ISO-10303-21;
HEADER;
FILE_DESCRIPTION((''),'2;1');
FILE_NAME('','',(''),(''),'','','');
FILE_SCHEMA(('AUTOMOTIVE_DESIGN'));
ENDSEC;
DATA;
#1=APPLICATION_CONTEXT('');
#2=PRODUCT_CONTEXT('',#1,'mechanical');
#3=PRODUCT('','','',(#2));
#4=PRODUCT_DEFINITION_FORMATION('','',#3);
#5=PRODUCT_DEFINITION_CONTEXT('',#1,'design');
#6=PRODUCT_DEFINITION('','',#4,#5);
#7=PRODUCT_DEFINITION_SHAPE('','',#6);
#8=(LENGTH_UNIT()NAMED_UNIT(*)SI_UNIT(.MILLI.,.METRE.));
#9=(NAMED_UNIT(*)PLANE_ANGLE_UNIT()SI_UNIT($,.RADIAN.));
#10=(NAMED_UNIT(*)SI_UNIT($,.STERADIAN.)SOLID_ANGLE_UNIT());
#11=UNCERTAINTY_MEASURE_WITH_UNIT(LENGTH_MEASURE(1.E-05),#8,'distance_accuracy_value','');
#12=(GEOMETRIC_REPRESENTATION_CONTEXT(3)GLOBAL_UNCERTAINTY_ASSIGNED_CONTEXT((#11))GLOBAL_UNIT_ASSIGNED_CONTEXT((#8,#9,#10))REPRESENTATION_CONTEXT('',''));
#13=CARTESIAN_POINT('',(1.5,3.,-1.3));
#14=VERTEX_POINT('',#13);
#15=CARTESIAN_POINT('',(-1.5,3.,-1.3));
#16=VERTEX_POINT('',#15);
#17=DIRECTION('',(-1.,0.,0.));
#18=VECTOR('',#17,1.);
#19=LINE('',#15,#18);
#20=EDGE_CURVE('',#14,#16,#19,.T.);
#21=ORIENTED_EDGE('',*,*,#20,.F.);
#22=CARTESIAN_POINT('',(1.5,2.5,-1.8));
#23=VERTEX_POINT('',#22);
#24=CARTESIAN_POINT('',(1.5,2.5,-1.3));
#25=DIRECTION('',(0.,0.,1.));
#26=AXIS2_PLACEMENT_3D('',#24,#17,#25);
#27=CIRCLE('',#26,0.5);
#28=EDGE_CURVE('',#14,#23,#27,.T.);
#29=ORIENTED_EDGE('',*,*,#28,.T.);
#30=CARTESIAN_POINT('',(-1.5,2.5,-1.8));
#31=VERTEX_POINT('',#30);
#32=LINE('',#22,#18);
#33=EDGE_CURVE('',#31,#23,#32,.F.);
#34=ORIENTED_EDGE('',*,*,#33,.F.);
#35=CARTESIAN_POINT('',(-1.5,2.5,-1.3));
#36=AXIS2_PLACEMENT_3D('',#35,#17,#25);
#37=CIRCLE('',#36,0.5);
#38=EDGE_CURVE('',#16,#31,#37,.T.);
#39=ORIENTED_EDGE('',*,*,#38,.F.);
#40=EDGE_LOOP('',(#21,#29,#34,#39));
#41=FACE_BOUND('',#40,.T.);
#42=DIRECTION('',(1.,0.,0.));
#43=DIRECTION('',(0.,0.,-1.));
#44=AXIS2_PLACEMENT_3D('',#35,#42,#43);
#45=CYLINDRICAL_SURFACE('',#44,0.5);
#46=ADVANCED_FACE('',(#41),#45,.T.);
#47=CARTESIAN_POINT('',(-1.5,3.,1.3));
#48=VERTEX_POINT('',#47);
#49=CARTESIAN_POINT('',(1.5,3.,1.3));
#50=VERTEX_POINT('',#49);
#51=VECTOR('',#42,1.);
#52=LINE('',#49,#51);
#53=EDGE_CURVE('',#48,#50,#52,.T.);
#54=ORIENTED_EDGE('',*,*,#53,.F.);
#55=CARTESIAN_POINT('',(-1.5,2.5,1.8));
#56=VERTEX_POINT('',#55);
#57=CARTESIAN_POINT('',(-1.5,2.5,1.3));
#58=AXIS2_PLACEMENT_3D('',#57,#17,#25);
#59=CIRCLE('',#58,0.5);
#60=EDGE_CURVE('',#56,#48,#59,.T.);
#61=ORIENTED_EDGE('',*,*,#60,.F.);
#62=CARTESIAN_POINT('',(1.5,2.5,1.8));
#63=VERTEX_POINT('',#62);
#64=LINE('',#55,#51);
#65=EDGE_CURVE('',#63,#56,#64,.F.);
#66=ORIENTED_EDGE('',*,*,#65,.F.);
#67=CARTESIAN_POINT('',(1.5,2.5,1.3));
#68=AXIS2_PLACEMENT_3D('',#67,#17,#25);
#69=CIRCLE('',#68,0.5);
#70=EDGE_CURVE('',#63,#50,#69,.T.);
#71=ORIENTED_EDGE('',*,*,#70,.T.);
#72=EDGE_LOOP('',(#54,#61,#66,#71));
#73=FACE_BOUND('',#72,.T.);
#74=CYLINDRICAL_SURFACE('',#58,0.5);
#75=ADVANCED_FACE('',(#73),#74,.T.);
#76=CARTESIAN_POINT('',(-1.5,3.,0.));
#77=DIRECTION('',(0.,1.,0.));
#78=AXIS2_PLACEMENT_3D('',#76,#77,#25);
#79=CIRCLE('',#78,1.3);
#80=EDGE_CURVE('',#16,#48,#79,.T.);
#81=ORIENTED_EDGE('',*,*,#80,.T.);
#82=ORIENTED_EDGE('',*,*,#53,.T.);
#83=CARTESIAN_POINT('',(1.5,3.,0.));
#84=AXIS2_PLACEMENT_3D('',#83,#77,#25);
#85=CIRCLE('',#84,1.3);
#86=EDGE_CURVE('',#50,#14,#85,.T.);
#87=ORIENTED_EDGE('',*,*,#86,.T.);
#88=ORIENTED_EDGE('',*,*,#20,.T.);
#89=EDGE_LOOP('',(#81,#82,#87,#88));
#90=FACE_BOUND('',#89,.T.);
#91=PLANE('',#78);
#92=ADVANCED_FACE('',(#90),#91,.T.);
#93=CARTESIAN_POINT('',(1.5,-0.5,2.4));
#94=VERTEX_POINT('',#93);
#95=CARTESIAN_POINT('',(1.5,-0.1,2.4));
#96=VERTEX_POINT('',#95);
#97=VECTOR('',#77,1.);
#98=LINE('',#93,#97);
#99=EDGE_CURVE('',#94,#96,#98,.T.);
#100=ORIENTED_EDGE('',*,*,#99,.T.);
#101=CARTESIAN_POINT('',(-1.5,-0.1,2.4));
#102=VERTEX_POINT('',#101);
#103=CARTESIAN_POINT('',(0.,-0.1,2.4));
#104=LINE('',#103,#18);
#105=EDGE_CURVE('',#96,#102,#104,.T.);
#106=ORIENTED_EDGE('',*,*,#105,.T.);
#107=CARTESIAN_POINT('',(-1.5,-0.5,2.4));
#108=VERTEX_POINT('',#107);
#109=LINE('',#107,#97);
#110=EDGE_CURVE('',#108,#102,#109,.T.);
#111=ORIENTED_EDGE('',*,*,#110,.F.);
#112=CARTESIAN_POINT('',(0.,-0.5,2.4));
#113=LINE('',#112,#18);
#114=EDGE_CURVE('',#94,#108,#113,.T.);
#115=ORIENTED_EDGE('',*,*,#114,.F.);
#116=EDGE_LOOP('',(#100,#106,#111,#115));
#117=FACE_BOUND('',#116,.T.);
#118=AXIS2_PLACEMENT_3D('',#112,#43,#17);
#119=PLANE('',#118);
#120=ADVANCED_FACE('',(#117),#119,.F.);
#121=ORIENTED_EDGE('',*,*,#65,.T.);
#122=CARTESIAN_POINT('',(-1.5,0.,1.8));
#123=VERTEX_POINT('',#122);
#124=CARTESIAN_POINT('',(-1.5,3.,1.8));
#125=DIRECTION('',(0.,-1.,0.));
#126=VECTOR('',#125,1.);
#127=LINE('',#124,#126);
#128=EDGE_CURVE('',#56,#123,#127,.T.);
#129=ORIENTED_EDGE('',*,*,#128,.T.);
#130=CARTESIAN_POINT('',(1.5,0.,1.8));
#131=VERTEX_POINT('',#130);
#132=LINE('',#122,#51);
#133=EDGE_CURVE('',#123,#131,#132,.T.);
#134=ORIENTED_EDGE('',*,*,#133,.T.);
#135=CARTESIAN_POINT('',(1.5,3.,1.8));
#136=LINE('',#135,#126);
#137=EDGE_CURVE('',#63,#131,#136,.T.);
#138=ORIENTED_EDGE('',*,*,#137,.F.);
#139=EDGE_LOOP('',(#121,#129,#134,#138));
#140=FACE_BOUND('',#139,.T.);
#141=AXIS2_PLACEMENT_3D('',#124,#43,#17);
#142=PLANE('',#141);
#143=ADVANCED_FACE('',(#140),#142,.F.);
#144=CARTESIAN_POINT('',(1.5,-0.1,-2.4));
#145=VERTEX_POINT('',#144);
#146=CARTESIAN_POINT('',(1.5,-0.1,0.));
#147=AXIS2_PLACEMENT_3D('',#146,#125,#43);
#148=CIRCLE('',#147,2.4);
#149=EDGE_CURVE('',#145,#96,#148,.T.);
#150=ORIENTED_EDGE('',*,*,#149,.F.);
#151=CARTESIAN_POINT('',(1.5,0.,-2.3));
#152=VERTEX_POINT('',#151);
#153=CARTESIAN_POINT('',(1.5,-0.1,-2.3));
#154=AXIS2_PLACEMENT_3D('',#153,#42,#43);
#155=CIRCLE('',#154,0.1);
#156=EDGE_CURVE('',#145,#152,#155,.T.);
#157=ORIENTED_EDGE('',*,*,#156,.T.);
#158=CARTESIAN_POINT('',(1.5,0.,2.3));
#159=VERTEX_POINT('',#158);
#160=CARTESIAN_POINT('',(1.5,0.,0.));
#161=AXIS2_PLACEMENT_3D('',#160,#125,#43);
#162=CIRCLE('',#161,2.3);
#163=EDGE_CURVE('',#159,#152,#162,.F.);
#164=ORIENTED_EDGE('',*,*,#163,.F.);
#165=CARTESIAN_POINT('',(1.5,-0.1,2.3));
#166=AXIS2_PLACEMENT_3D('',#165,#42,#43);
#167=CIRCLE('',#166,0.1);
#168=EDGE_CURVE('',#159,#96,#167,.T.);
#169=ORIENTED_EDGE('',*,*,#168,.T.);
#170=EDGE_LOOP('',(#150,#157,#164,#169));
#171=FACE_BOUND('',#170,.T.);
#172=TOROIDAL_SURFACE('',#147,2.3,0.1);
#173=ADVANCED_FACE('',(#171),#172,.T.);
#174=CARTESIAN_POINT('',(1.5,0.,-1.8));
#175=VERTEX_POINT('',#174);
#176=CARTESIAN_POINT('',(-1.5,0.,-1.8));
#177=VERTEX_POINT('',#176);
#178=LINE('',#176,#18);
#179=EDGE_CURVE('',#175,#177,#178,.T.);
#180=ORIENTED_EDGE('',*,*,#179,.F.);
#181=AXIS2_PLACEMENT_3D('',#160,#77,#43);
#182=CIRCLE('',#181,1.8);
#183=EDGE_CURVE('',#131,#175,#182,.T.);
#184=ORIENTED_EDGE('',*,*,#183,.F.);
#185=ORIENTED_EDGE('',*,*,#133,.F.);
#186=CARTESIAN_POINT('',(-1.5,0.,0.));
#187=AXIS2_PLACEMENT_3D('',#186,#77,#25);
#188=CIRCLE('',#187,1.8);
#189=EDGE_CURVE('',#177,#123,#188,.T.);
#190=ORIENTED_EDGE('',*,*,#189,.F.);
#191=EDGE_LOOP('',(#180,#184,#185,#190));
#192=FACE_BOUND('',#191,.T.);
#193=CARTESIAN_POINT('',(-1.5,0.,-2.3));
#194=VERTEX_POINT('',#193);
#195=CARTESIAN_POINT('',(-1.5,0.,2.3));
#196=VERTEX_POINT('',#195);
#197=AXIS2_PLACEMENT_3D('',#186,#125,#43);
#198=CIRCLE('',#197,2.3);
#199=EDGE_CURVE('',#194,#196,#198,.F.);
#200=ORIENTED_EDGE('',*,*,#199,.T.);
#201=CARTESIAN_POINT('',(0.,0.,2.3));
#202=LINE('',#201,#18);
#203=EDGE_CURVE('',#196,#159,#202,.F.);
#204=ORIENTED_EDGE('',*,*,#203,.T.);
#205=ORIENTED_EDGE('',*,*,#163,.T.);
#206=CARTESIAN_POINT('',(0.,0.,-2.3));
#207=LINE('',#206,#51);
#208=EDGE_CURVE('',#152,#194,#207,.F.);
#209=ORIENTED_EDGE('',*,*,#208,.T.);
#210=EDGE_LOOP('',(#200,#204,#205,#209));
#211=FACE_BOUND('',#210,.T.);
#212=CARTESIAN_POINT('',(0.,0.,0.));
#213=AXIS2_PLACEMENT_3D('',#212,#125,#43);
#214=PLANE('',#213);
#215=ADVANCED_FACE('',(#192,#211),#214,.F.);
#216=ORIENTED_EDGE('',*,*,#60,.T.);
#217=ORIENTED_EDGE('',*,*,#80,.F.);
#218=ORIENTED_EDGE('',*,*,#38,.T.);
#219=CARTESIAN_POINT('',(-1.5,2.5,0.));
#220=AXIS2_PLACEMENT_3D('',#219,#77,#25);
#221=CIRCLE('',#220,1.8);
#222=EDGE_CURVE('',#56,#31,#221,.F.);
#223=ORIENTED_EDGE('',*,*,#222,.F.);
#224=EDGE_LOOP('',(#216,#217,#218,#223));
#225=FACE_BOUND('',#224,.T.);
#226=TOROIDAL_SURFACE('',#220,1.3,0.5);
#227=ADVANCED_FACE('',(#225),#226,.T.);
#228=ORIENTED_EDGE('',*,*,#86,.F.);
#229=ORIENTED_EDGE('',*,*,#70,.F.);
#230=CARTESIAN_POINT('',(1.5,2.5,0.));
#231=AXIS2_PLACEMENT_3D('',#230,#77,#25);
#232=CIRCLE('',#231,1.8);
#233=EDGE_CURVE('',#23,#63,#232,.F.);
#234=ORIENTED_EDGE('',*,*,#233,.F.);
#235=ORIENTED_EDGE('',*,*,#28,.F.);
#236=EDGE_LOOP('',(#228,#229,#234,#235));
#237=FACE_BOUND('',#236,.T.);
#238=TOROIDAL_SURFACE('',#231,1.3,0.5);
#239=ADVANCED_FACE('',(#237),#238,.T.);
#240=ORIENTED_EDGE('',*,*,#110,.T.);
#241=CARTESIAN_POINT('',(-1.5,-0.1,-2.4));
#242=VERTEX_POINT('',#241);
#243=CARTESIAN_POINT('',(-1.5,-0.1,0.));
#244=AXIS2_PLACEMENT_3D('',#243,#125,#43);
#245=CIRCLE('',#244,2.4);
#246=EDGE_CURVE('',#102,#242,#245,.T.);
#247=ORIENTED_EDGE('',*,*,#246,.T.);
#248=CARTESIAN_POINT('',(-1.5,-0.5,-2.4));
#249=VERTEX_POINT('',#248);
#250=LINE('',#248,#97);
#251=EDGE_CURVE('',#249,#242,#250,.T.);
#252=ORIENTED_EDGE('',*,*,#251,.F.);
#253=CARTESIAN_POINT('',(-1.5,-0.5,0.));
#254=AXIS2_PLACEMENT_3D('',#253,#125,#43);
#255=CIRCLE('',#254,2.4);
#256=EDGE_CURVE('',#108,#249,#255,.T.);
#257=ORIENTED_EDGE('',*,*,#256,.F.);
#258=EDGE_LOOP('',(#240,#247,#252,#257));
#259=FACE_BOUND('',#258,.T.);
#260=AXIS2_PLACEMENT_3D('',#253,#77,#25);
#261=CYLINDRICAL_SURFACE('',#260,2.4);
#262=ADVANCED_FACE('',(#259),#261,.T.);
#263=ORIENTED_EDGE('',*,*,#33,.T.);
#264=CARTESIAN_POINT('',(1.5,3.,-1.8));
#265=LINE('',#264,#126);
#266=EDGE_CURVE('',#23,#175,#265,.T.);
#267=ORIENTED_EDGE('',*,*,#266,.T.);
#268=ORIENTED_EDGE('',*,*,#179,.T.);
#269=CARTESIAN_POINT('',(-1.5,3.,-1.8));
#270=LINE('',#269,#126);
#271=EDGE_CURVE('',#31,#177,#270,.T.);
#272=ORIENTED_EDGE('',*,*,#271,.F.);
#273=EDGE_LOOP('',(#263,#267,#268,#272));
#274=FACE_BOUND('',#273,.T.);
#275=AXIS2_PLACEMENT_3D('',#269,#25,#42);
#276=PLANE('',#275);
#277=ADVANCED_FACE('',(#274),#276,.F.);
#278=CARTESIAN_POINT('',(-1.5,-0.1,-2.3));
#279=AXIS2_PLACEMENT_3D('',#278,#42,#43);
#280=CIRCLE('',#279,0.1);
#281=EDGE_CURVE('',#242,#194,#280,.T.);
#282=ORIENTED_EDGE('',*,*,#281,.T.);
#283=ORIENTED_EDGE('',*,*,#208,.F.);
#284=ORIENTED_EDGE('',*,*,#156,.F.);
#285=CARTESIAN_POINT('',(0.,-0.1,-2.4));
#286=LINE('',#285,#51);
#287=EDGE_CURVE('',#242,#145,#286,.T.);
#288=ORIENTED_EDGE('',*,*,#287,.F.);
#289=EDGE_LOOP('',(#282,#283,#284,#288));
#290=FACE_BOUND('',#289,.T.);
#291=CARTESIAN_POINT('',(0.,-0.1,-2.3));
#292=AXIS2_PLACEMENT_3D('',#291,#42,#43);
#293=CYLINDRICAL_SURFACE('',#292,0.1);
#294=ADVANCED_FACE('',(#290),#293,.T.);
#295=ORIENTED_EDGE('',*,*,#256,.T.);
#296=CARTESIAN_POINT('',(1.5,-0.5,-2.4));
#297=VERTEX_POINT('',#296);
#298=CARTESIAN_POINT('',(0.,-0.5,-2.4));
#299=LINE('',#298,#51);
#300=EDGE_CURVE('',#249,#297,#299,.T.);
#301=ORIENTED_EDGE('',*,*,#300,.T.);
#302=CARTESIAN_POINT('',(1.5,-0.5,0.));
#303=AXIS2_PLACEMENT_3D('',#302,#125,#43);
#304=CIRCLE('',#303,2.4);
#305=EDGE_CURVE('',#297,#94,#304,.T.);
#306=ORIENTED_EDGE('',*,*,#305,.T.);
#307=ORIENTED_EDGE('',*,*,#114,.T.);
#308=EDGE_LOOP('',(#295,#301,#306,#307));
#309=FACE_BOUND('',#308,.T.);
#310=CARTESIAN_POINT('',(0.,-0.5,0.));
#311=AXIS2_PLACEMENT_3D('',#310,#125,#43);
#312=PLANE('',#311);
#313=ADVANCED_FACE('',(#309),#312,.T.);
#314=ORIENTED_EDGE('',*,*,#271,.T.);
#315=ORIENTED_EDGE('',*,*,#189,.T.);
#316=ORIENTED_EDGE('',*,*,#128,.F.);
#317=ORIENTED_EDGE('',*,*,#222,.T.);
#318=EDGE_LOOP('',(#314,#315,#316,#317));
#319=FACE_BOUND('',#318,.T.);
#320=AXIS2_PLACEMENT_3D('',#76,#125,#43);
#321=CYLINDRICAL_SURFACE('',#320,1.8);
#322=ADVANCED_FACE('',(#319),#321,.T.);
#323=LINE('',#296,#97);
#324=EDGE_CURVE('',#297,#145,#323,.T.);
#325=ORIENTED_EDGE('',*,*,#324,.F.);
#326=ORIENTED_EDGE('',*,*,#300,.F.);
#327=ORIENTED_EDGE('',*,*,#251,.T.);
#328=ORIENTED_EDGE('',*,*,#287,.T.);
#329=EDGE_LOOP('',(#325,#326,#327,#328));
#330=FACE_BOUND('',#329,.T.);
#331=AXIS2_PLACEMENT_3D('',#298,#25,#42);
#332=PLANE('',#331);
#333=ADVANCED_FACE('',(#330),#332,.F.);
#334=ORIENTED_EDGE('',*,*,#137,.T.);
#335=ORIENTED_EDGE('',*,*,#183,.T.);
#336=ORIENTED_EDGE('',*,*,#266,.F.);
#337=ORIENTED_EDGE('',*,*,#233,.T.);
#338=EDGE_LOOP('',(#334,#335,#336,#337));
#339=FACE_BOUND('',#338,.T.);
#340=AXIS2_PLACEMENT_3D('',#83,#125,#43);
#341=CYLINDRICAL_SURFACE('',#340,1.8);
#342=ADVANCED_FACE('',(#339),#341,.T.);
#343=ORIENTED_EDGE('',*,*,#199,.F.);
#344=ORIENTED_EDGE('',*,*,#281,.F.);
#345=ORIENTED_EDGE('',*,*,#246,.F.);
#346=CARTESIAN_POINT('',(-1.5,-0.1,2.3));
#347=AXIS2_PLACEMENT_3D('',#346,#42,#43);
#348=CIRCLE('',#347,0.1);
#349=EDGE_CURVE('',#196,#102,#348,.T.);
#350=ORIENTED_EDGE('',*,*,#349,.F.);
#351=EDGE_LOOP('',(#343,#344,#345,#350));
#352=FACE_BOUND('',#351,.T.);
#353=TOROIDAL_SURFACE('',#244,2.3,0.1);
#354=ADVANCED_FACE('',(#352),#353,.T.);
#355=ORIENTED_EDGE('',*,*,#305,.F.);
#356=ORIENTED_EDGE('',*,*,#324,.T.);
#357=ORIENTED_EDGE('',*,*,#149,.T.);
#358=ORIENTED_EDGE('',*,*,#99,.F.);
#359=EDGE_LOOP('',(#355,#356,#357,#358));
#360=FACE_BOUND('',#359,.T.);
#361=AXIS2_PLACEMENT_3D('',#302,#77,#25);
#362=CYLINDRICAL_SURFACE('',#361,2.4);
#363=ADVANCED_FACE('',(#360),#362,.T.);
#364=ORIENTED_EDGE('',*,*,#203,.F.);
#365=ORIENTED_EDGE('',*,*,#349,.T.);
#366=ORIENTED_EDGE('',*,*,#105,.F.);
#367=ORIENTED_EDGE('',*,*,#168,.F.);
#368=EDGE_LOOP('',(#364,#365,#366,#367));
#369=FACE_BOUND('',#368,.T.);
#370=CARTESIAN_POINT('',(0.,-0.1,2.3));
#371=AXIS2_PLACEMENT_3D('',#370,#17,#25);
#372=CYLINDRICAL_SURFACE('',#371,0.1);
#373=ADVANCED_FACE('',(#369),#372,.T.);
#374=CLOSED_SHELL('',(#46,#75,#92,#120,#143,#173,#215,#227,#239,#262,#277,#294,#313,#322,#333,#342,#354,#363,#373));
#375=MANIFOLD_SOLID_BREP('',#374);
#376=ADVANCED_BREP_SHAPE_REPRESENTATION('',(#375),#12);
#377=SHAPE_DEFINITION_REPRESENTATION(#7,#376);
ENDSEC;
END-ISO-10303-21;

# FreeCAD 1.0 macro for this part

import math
import FreeCAD as App
import Part
import Sketcher


def edges_at(feature, points):
    """Names of the edges that pass closest to the given points."""
    edges = feature.Shape.Edges
    near = lambda p: min(range(len(edges)), key=lambda i: edges[i].distToShape(Part.Vertex(*p))[0])
    return sorted({f"Edge{near(p) + 1}" for p in points})

doc = App.newDocument("Part")
body = doc.addObject("PartDesign::Body", "Body")

# Sketch on XZ plane
sketch1 = body.newObject("Sketcher::SketchObject", "Sketch")
sketch1.AttachmentSupport = (doc.getObject("XZ_Plane"), [""])
sketch1.MapMode = "FlatFace"
sketch1.addGeometry([
    Part.LineSegment(App.Vector(1.5, -1.8, 0), App.Vector(-1.5, -1.8, 0)),
    Part.ArcOfCircle(Part.Circle(App.Vector(-1.5, 0, 0), App.Vector(0, 0, 1), 1.8), math.radians(90), math.radians(270)),
    Part.LineSegment(App.Vector(-1.5, 1.8, 0), App.Vector(1.5, 1.8, 0)),
    Part.ArcOfCircle(Part.Circle(App.Vector(1.5, 0, 0), App.Vector(0, 0, 1), 1.8), math.radians(-90), math.radians(90)),
], False)
sketch1.addConstraint([
    Sketcher.Constraint("Tangent", 0, 2, 1, 2),
    Sketcher.Constraint("Tangent", 1, 1, 2, 1),
    Sketcher.Constraint("Tangent", 2, 2, 3, 2),
    Sketcher.Constraint("Tangent", 3, 1, 0, 1),
    Sketcher.Constraint("Horizontal", 0),
    Sketcher.Constraint("Horizontal", 2),
    Sketcher.Constraint("Symmetric", 1, 3, 3, 3, -1, 1),
    Sketcher.Constraint("Radius", 1, 1.8),
    Sketcher.Constraint("DistanceX", 0, 2, 0, 1, 3.0),
])
pad1 = body.newObject("PartDesign::Pad", "Pad")
pad1.Profile = sketch1
pad1.Length = 3
pad1.Reversed = True

# Sketch on XZ plane
sketch2 = body.newObject("Sketcher::SketchObject", "Sketch001")
sketch2.AttachmentSupport = (doc.getObject("XZ_Plane"), [""])
sketch2.MapMode = "FlatFace"
sketch2.AttachmentOffset = App.Placement(App.Vector(0, 0, 0.5), App.Rotation())
sketch2.addGeometry([
    Part.LineSegment(App.Vector(-1.5, -2.4, 0), App.Vector(1.5, -2.4, 0)),
    Part.ArcOfCircle(Part.Circle(App.Vector(1.5, 0, 0), App.Vector(0, 0, 1), 2.4), math.radians(-90), math.radians(90)),
    Part.LineSegment(App.Vector(1.5, 2.4, 0), App.Vector(-1.5, 2.4, 0)),
    Part.ArcOfCircle(Part.Circle(App.Vector(-1.5, 0, 0), App.Vector(0, 0, 1), 2.4), math.radians(90), math.radians(270)),
], False)
sketch2.addConstraint([
    Sketcher.Constraint("Tangent", 0, 2, 1, 1),
    Sketcher.Constraint("Tangent", 1, 2, 2, 1),
    Sketcher.Constraint("Tangent", 2, 2, 3, 1),
    Sketcher.Constraint("Tangent", 3, 2, 0, 1),
    Sketcher.Constraint("Horizontal", 0),
    Sketcher.Constraint("Horizontal", 2),
    Sketcher.Constraint("Symmetric", 1, 3, 3, 3, -1, 1),
    Sketcher.Constraint("Radius", 1, 2.4),
    Sketcher.Constraint("DistanceX", 0, 1, 0, 2, 3.0),
])
pad2 = body.newObject("PartDesign::Pad", "Pad001")
pad2.Profile = sketch2
pad2.Length = 0.5
pad2.Reversed = True
doc.recompute()

fillet = body.newObject("PartDesign::Fillet", "Fillet")
fillet.Base = (pad2, edges_at(pad2, [
    (3.3, 3, 0),
    (0, 3, -1.8),
    (-3.3, 3, 0),
    (0, 3, 1.8),
]))
fillet.Radius = 0.5
doc.recompute()

fillet2 = body.newObject("PartDesign::Fillet", "Fillet001")
fillet2.Base = (fillet, edges_at(fillet, [
    (0, 0, -2.4),
    (3.9, 0, 0),
    (0, 0, 2.4),
    (-3.9, 0, 0),
]))
fillet2.Radius = 0.1

doc.recompute()
